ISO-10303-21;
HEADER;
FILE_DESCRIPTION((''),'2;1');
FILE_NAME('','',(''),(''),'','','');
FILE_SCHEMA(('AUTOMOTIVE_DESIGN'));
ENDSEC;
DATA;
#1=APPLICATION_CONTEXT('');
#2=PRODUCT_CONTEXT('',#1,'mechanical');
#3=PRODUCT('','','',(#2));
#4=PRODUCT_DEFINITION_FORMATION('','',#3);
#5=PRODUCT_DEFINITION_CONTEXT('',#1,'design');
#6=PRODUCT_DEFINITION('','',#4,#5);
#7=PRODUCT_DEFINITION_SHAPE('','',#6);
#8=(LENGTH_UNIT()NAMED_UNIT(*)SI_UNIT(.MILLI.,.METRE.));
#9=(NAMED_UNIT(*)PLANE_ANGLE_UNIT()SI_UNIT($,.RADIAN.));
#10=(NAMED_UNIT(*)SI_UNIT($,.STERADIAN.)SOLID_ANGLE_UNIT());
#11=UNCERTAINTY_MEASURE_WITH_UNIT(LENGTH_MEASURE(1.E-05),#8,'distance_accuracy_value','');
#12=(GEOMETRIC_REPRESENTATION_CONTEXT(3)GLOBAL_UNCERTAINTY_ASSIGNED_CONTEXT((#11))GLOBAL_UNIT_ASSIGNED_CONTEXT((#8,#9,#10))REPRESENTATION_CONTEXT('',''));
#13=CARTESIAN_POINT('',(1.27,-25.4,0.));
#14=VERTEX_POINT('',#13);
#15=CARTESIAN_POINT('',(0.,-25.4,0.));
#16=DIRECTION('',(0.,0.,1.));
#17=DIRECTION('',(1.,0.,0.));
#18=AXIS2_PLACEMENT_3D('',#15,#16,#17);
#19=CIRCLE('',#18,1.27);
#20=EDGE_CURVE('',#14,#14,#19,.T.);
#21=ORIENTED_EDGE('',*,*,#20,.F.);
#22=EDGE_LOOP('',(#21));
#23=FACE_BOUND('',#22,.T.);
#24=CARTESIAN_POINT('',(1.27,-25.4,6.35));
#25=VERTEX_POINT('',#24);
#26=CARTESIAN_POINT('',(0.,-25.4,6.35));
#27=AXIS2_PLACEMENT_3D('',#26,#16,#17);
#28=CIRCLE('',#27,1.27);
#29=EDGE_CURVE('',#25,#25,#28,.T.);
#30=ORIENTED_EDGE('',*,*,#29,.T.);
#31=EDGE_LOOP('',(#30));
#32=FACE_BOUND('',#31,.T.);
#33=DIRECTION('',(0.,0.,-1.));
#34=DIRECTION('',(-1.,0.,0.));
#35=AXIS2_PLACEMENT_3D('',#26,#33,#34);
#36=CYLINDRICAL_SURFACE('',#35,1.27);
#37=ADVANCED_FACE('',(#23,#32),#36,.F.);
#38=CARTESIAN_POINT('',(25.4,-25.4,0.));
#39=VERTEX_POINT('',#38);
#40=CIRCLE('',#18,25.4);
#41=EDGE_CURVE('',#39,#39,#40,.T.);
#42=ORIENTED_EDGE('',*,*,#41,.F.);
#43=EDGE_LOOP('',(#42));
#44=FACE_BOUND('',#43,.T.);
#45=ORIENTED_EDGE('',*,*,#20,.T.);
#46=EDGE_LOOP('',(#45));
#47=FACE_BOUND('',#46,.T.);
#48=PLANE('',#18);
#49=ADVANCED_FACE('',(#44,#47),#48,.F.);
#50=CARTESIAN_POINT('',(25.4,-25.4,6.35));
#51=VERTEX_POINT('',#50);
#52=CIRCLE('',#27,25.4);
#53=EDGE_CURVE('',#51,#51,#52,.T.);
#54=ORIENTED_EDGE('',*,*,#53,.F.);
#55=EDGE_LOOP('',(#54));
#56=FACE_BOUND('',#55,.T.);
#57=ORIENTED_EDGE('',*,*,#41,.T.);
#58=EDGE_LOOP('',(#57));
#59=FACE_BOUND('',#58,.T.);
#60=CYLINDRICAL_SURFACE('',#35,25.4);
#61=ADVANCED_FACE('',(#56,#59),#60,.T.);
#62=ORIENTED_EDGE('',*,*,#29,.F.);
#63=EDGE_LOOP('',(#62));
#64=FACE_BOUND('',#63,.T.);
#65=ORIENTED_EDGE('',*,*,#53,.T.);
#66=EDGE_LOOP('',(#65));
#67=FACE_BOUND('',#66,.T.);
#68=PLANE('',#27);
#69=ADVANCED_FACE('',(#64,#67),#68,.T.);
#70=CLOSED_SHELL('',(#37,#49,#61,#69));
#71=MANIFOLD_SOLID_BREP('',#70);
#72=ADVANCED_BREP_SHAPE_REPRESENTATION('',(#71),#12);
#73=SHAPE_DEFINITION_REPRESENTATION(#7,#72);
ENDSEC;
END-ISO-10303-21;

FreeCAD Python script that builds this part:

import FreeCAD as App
import Part
import Sketcher

V = App.Vector
Q = App.Units.Quantity

doc = App.newDocument("Part")
body = doc.addObject("PartDesign::Body", "Body")

sketch1 = body.newObject("Sketcher::SketchObject", "Sketch")
sketch1.AttachmentSupport = (doc.getObject("XY_Plane"), [""])
sketch1.MapMode = "FlatFace"
sketch1.addGeometry([
    Part.Circle(V(0, -25.4, 0), V(0, 0, 1), 25.4),
    Part.Circle(V(0, -25.4, 0), V(0, 0, 1), 1.27),
], False)
sketch1.addConstraint([
    Sketcher.Constraint("Coincident", 1, 3, 0, 3),
    Sketcher.Constraint("PointOnObject", 0, 3, -2),
    Sketcher.Constraint("Diameter", 0, Q("2 in")),
    Sketcher.Constraint("Diameter", 1, Q("0.1 in")),
    Sketcher.Constraint("DistanceY", 0, 3, -1, 1, Q("1 in")),
])
pad1 = body.newObject("PartDesign::Pad", "Pad")
pad1.Profile = sketch1
pad1.Length = Q("0.25 in")

doc.recompute()
